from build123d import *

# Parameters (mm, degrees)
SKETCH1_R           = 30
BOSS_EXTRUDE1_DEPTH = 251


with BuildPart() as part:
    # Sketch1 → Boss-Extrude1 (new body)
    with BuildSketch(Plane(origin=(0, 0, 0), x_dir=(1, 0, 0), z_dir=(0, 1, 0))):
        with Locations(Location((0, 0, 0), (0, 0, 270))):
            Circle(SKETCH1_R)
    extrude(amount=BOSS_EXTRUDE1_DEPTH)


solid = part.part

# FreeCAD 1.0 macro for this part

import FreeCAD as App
import Part
import Sketcher

V = App.Vector

doc = App.newDocument("Part")
body = doc.addObject("PartDesign::Body", "Body")

sketch1 = body.newObject("Sketcher::SketchObject", "Sketch")
sketch1.AttachmentSupport = (doc.getObject("XZ_Plane"), [""])
sketch1.MapMode = "FlatFace"
sketch1.addGeometry(Part.Circle(V(0, 0, 0), V(0, 0, 1), 30), False)
sketch1.addConstraint(Sketcher.Constraint("Coincident", 0, 3, -1, 1))
sketch1.addConstraint(Sketcher.Constraint("Diameter", 0, 60.0))
pad1 = body.newObject("PartDesign::Pad", "Pad")
pad1.Profile = sketch1
pad1.Length = 251
pad1.Reversed = True

doc.recompute()
